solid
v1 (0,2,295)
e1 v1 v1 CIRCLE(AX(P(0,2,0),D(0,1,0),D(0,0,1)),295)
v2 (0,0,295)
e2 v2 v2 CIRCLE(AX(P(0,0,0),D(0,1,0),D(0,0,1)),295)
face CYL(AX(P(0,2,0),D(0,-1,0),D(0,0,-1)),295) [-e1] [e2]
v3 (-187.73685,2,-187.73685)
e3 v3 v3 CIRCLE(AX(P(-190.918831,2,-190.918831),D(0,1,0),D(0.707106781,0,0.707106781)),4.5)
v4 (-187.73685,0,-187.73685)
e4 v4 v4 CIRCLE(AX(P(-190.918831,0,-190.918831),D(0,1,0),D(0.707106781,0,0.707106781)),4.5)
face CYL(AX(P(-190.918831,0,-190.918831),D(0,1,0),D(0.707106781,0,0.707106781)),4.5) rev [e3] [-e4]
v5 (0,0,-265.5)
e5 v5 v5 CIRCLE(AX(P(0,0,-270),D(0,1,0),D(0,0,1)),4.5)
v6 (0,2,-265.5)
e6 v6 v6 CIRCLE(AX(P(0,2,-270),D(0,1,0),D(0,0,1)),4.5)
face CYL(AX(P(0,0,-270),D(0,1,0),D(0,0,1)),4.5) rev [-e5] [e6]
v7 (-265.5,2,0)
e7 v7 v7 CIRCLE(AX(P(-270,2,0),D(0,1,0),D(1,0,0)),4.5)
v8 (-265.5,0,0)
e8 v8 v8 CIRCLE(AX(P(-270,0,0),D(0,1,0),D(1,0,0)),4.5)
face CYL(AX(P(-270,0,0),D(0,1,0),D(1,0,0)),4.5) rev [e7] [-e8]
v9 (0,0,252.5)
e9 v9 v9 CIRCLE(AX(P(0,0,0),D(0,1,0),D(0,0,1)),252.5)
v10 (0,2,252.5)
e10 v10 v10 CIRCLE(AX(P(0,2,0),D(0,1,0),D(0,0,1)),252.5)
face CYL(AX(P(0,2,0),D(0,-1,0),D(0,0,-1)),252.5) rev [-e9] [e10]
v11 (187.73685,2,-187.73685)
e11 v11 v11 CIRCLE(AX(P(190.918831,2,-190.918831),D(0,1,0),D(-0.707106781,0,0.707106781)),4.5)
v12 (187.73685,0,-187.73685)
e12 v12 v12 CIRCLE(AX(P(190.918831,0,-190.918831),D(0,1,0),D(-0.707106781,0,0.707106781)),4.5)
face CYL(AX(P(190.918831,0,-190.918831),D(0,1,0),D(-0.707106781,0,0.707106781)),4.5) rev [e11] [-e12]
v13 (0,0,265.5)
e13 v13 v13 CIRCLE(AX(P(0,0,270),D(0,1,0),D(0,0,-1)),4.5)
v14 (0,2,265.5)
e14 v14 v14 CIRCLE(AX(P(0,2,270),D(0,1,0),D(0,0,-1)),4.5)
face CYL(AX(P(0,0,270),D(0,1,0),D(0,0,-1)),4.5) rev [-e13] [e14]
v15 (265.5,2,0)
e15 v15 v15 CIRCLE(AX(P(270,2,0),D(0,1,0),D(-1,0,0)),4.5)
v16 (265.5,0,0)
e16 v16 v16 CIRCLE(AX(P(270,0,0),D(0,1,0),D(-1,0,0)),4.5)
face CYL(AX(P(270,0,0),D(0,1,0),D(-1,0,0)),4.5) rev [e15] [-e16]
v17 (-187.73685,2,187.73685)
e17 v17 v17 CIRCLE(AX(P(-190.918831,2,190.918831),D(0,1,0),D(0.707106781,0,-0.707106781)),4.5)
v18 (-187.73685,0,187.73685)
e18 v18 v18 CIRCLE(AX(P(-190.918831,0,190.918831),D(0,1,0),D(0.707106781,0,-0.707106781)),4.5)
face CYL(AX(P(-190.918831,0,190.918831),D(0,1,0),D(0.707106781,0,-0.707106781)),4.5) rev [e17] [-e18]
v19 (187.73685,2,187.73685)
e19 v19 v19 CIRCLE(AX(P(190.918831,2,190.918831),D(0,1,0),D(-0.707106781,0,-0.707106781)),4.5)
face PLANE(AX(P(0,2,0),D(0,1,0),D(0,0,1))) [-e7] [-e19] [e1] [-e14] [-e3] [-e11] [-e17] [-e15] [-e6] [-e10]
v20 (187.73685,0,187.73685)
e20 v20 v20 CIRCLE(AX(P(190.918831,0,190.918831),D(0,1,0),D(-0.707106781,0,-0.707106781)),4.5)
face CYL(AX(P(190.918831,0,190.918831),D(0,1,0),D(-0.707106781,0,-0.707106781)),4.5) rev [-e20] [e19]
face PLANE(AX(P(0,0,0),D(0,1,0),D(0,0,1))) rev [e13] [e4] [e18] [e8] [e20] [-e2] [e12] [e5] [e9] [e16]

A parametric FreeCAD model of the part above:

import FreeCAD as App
import Part
import Sketcher
from FreeCAD import Vector

doc = App.newDocument("Part")
body = doc.addObject("PartDesign::Body", "Body")

# Sketch on XZ plane
sketch1 = body.newObject("Sketcher::SketchObject", "Sketch")
sketch1.AttachmentSupport = (doc.getObject("XZ_Plane"), [""])
sketch1.MapMode = "FlatFace"
sketch1.addGeometry([
    Part.Circle(Vector(0, 0, 0), Vector(0, 0, 1), 295),
    Part.Circle(Vector(0, 0, 0), Vector(0, 0, 1), 252),
], False)
sketch1.addConstraint([
    Sketcher.Constraint("Coincident", 0, 3, -1, 1),
    Sketcher.Constraint("Coincident", 1, 3, -1, 1),
    Sketcher.Constraint("Diameter", 0, 590.0),
    Sketcher.Constraint("Diameter", 1, 505.0),
])
pad1 = body.newObject("PartDesign::Pad", "Pad")
pad1.Profile = sketch1
pad1.Length = 2
pad1.Reversed = True

# Sketch on XZ plane
sketch2 = body.newObject("Sketcher::SketchObject", "Sketch001")
sketch2.AttachmentSupport = (doc.getObject("XZ_Plane"), [""])
sketch2.MapMode = "FlatFace"
sketch2.AttachmentOffset = App.Placement(Vector(0, 0, -2), App.Rotation())
sketch2.addGeometry(Part.Circle(Vector(0, -270, 0), Vector(0, 0, 1), 4.5), False)
sketch2.addConstraint([
    Sketcher.Constraint("PointOnObject", 0, 3, -2),
    Sketcher.Constraint("Diameter", 0, 9.0),
    Sketcher.Constraint("DistanceY", 0, 3, -1, 1, 270.0),
])
pocket1 = body.newObject("PartDesign::Pocket", "Pocket")
pocket1.Profile = sketch2
pocket1.Length = 2
pocket1.Reversed = True
doc.recompute()

polarpattern = body.newObject("PartDesign::PolarPattern", "PolarPattern")
polarpattern.Originals = [pocket1]
polarpattern.Axis = (doc.getObject("Y_Axis"), [""])
polarpattern.Angle = 360
polarpattern.Occurrences = 8
body.Tip = polarpattern

doc.recompute()
